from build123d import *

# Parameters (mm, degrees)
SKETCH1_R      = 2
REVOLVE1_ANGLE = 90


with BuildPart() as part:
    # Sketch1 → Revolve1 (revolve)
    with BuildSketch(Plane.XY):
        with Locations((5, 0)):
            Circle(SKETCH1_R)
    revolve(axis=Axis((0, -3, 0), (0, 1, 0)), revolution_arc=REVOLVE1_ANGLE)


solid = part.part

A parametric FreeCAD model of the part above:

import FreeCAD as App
import Part
import Sketcher
Q = App.Units.Quantity

doc = App.newDocument("Part")
body = doc.addObject("PartDesign::Body", "Body")

# Sketch on XY plane
sketch1 = doc.addObject("Sketcher::SketchObject", "Sketch")
body.addObject(sketch1)
sketch1.AttachmentSupport = (doc.XY_Plane, [""])
sketch1.MapMode = "FlatFace"
sketch1.addGeometry(Part.Circle(App.Vector(5, 0, 0), App.Vector(0, 0, 1), 2), False)
sketch1.addConstraint([
    Sketcher.Constraint("PointOnObject", 0, 3, -1),
    Sketcher.Constraint("Diameter", 0, Q("4 mm")),
    Sketcher.Constraint("DistanceX", -1, 1, 0, 3, Q("5 mm")),
])
revolution = doc.addObject("PartDesign::Revolution", "Revolution")
body.addObject(revolution)
revolution.Profile = sketch1
revolution.ReferenceAxis = (sketch1, ["V_Axis"])
revolution.Angle = 90

doc.recompute()
